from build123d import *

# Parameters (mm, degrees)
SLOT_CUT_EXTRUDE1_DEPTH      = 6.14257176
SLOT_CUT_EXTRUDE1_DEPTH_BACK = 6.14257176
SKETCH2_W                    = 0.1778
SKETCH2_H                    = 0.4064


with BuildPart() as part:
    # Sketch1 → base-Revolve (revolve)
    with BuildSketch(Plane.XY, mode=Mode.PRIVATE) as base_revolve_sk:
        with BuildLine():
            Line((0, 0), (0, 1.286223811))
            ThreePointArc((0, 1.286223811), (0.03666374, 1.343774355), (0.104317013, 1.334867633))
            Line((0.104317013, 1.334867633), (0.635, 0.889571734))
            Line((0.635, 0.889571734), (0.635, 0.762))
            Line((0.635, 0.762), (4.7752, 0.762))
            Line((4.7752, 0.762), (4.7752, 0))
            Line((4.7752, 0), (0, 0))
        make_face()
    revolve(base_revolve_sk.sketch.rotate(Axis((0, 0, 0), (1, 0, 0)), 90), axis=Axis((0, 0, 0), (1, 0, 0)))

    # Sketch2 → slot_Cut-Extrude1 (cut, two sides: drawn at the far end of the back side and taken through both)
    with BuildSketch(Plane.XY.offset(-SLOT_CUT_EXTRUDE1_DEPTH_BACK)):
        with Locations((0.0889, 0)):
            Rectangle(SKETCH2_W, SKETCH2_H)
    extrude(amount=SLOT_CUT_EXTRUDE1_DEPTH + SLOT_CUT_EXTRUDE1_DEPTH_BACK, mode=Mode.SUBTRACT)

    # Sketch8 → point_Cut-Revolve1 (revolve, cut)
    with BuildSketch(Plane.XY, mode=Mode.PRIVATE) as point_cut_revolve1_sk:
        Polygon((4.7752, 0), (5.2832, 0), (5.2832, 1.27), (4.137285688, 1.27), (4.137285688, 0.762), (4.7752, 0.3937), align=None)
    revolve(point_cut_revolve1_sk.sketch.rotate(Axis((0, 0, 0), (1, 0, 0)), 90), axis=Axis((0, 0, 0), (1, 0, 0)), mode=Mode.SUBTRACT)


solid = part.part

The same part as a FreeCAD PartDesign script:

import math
import FreeCAD as App
import Part
import Sketcher

V = App.Vector
Q = App.Units.Quantity


def add_polygon(sketch, points):
    """Adds a closed chain of lines whose ends are joined by coincident constraints."""
    first, n = sketch.GeometryCount, len(points)
    for a, b in zip(points, points[1:] + points[:1]):
        sketch.addGeometry(Part.LineSegment(App.Vector(*a, 0), App.Vector(*b, 0)), False)
    for i in range(n):
        sketch.addConstraint(Sketcher.Constraint("Coincident", first + i, 2, first + (i + 1) % n, 1))

doc = App.newDocument("Part")
body = doc.addObject("PartDesign::Body", "Body")

sketch1 = body.newObject("Sketcher::SketchObject", "Sketch")
sketch1.AttachmentSupport = (doc.getObject("XY_Plane"), [""])
sketch1.MapMode = "FlatFace"
sketch1.addGeometry(Part.LineSegment(V(0, 1.286224, 0), V(0, 0, 0)), False)
sketch1.addGeometry(Part.LineSegment(V(0, 0, 0), V(4.7752, 0, 0)), False)
sketch1.addGeometry(Part.LineSegment(V(4.7752, 0, 0), V(4.7752, 0.762, 0)), False)
sketch1.addGeometry(Part.LineSegment(V(4.7752, 0.762, 0), V(0.635, 0.762, 0)), False)
sketch1.addGeometry(Part.LineSegment(V(0.635, 0.762, 0), V(0.635, 0.889572, 0)), False)
sketch1.addGeometry(Part.LineSegment(V(0.635, 0.889572, 0), V(0.104317, 1.334868, 0)), False)
sketch1.addGeometry(Part.ArcOfCircle(Part.Circle(V(0.0635, 1.286224, 0), V(0, 0, 1), 0.0635), math.radians(50), math.radians(180)), False)
sketch1.addConstraint(Sketcher.Constraint("Coincident", 0, 2, 1, 1))
sketch1.addConstraint(Sketcher.Constraint("Coincident", 1, 2, 2, 1))
sketch1.addConstraint(Sketcher.Constraint("Coincident", 2, 2, 3, 1))
sketch1.addConstraint(Sketcher.Constraint("Coincident", 3, 2, 4, 1))
sketch1.addConstraint(Sketcher.Constraint("Coincident", 4, 2, 5, 1))
sketch1.addConstraint(Sketcher.Constraint("Tangent", 5, 2, 6, 1))
sketch1.addConstraint(Sketcher.Constraint("Tangent", 6, 2, 0, 1))
sketch1.addConstraint(Sketcher.Constraint("Vertical", 0))
sketch1.addConstraint(Sketcher.Constraint("Horizontal", 1))
sketch1.addConstraint(Sketcher.Constraint("Vertical", 2))
sketch1.addConstraint(Sketcher.Constraint("Horizontal", 3))
sketch1.addConstraint(Sketcher.Constraint("Vertical", 4))
sketch1.addConstraint(Sketcher.Constraint("Coincident", 0, 2, -1, 1))
sketch1.addConstraint(Sketcher.Constraint("Angle", 5, Q("140 deg")))
sketch1.addConstraint(Sketcher.Constraint("DistanceY", 2, 1, 2, 2, Q("0.03 in")))
sketch1.addConstraint(Sketcher.Constraint("Radius", 6, Q("0.0025 in")))
sketch1.addConstraint(Sketcher.Constraint("DistanceX", 1, 1, 1, 2, Q("0.188 in")))
sketch1.addConstraint(Sketcher.Constraint("DistanceX", 3, 2, 3, 1, Q("0.163 in")))
sketch1.addConstraint(Sketcher.Constraint("DistanceY", 4, 1, 4, 2, 0.127572))
revolution = body.newObject("PartDesign::Revolution", "Revolution")
revolution.Profile = sketch1
revolution.ReferenceAxis = (sketch1, ["H_Axis"])
revolution.Angle = 360

sketch2 = body.newObject("Sketcher::SketchObject", "Sketch001")
sketch2.AttachmentSupport = (doc.getObject("XY_Plane"), [""])
sketch2.MapMode = "FlatFace"
add_polygon(sketch2, [(0, 0.2032), (0, -0.2032), (0.1778, -0.2032), (0.1778, 0.2032)])
sketch2.addConstraint(Sketcher.Constraint("Vertical", 0))
sketch2.addConstraint(Sketcher.Constraint("Horizontal", 1))
sketch2.addConstraint(Sketcher.Constraint("Vertical", 2))
sketch2.addConstraint(Sketcher.Constraint("Horizontal", 3))
sketch2.addConstraint(Sketcher.Constraint("Symmetric", 0, 2, 3, 2, -1, 1))
sketch2.addConstraint(Sketcher.Constraint("DistanceX", 1, 1, 1, 2, Q("0.007 in")))
sketch2.addConstraint(Sketcher.Constraint("DistanceY", 0, 2, 0, 1, Q("0.016 in")))
pocket1 = body.newObject("PartDesign::Pocket", "Pocket")
pocket1.Profile = sketch2
pocket1.Type = "ThroughAll"
pocket1.Midplane = True

sketch3 = body.newObject("Sketcher::SketchObject", "Sketch002")
sketch3.AttachmentSupport = (doc.getObject("XY_Plane"), [""])
sketch3.MapMode = "FlatFace"
add_polygon(sketch3, [(4.7752, 0), (5.2832, 0), (5.2832, 1.27), (4.137286, 1.27), (4.137286, 0.762), (4.7752, 0.3937)])
sketch3.addConstraint(Sketcher.Constraint("Horizontal", 0))
sketch3.addConstraint(Sketcher.Constraint("Vertical", 1))
sketch3.addConstraint(Sketcher.Constraint("Horizontal", 2))
sketch3.addConstraint(Sketcher.Constraint("Vertical", 3))
sketch3.addConstraint(Sketcher.Constraint("Vertical", 5))
sketch3.addConstraint(Sketcher.Constraint("PointOnObject", 0, 2, -1))
sketch3.addConstraint(Sketcher.Constraint("Equal", 0, 3))
sketch3.addConstraint(Sketcher.Constraint("Angle", 4, Q("-30 deg")))
sketch3.addConstraint(Sketcher.Constraint("DistanceX", 0, 1, 0, 2, Q("0.02 in")))
sketch3.addConstraint(Sketcher.Constraint("DistanceY", 1, 1, 1, 2, Q("0.05 in")))
sketch3.addConstraint(Sketcher.Constraint("Distance", 4, Q("0.029 in")))
sketch3.addConstraint(Sketcher.Constraint("DistanceX", -1, 1, 0, 2, Q("0.208 in")))
groove = body.newObject("PartDesign::Groove", "Groove")
groove.Profile = sketch3
groove.ReferenceAxis = (sketch3, ["H_Axis"])
groove.Angle = 360

doc.recompute()
